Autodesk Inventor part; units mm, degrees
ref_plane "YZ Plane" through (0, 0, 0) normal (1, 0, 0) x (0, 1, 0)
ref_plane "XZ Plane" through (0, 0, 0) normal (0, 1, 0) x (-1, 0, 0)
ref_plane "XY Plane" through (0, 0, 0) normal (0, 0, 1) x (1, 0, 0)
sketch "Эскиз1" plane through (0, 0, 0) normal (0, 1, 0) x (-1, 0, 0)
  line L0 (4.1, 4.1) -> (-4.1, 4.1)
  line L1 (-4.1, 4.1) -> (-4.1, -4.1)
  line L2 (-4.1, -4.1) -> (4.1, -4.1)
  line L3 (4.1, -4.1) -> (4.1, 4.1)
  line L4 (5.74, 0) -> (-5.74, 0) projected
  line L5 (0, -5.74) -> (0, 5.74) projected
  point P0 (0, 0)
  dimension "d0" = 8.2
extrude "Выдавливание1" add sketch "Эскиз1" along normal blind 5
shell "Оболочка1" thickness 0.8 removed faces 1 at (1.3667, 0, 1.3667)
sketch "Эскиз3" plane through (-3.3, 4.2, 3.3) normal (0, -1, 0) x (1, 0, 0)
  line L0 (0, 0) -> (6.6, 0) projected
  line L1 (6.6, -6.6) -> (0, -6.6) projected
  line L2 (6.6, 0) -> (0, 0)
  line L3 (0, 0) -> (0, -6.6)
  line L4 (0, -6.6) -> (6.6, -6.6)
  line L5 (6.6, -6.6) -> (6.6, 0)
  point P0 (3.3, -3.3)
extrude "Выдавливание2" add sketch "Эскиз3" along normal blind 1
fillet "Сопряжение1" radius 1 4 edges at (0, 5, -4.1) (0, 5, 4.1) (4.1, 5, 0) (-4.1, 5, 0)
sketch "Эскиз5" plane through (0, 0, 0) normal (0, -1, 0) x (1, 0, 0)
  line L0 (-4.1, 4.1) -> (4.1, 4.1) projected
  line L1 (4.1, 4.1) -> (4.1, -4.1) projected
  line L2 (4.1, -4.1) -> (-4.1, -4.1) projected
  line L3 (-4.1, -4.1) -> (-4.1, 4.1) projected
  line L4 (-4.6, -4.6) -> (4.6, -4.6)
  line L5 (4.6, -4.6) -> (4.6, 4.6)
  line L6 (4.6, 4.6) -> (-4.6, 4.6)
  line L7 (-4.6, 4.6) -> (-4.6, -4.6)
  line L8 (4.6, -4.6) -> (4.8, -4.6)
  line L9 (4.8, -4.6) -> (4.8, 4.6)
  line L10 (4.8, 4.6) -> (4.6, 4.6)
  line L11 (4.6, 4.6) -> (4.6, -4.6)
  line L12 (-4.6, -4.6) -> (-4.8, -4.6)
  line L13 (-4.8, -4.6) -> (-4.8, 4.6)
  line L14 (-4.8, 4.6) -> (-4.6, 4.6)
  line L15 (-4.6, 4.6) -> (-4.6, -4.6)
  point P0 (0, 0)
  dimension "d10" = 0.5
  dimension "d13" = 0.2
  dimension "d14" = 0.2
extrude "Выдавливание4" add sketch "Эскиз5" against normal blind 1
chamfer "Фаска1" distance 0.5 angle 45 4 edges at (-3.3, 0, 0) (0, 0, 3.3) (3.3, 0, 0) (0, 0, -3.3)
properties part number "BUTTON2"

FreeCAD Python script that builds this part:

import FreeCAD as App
import Part
import Sketcher
from FreeCAD import Vector
Q = App.Units.Quantity


def edges_at(feature, points):
    """Names of the edges that pass closest to the given points."""
    edges = feature.Shape.Edges
    near = lambda p: min(range(len(edges)), key=lambda i: edges[i].distToShape(Part.Vertex(*p))[0])
    return sorted({f"Edge{near(p) + 1}" for p in points})


def faces_at(feature, points):
    """Names of the faces that lie closest to the given points."""
    faces = feature.Shape.Faces
    near = lambda p: min(range(len(faces)), key=lambda i: faces[i].distToShape(Part.Vertex(*p))[0])
    return sorted({f"Face{near(p) + 1}" for p in points})

doc = App.newDocument("Part")
body = doc.addObject("PartDesign::Body", "Body")

sketch1 = doc.addObject("Sketcher::SketchObject", "Sketch")
body.addObject(sketch1)
sketch1.AttachmentSupport = (doc.XZ_Plane, [""])
sketch1.MapMode = "FlatFace"
sketch1.addGeometry([
    Part.LineSegment(Vector(-4.1, 4.1, 0), Vector(4.1, 4.1, 0)),
    Part.LineSegment(Vector(4.1, 4.1, 0), Vector(4.1, -4.1, 0)),
    Part.LineSegment(Vector(4.1, -4.1, 0), Vector(-4.1, -4.1, 0)),
    Part.LineSegment(Vector(-4.1, -4.1, 0), Vector(-4.1, 4.1, 0)),
], False)
sketch1.addConstraint([
    Sketcher.Constraint("Coincident", 0, 2, 1, 1),
    Sketcher.Constraint("Coincident", 1, 2, 2, 1),
    Sketcher.Constraint("Coincident", 2, 2, 3, 1),
    Sketcher.Constraint("Coincident", 3, 2, 0, 1),
    Sketcher.Constraint("Horizontal", 0),
    Sketcher.Constraint("Vertical", 1),
    Sketcher.Constraint("Horizontal", 2),
    Sketcher.Constraint("Vertical", 3),
    Sketcher.Constraint("Symmetric", 0, 2, 2, 2, -1, 1),
    Sketcher.Constraint("Equal", 2, 1),
    Sketcher.Constraint("DistanceX", 0, 1, 0, 2, Q("8.2 mm")),
])
pad1 = doc.addObject("PartDesign::Pad", "Pad")
body.addObject(pad1)
pad1.Profile = sketch1
pad1.Length = 5
pad1.Reversed = True
doc.recompute()

thickness = doc.addObject("PartDesign::Thickness", "Thickness")
body.addObject(thickness)
thickness.Base = (pad1, faces_at(pad1, [(1.367, 0, 1.367)]))
thickness.Value = 0.8
thickness.Reversed = True
thickness.Join = "Intersection"

sketch2 = doc.addObject("Sketcher::SketchObject", "Sketch001")
body.addObject(sketch2)
sketch2.AttachmentSupport = (doc.XZ_Plane, [""])
sketch2.MapMode = "FlatFace"
sketch2.AttachmentOffset = App.Placement(Vector(0, 0, -4.2), App.Rotation())
sketch2.addGeometry([
    Part.LineSegment(Vector(3.3, 3.3, 0), Vector(-3.3, 3.3, 0)),
    Part.LineSegment(Vector(-3.3, 3.3, 0), Vector(-3.3, -3.3, 0)),
    Part.LineSegment(Vector(-3.3, -3.3, 0), Vector(3.3, -3.3, 0)),
    Part.LineSegment(Vector(3.3, -3.3, 0), Vector(3.3, 3.3, 0)),
], False)
sketch2.addConstraint([
    Sketcher.Constraint("Coincident", 0, 2, 1, 1),
    Sketcher.Constraint("Coincident", 1, 2, 2, 1),
    Sketcher.Constraint("Coincident", 2, 2, 3, 1),
    Sketcher.Constraint("Coincident", 3, 2, 0, 1),
    Sketcher.Constraint("Horizontal", 0),
    Sketcher.Constraint("Vertical", 1),
    Sketcher.Constraint("Horizontal", 2),
    Sketcher.Constraint("Vertical", 3),
    Sketcher.Constraint("Symmetric", 0, 2, 2, 2, -1, 1),
    Sketcher.Constraint("Equal", 2, 1),
    Sketcher.Constraint("DistanceX", 0, 2, 0, 1, Q("6.6 mm")),
])
pad2 = doc.addObject("PartDesign::Pad", "Pad001")
body.addObject(pad2)
pad2.Profile = sketch2
pad2.Length = 1
doc.recompute()

fillet = doc.addObject("PartDesign::Fillet", "Fillet")
body.addObject(fillet)
fillet.Base = (pad2, edges_at(pad2, [
    (0, 5, -4.1),
    (0, 5, 4.1),
    (4.1, 5, 0),
    (-4.1, 5, 0),
]))
fillet.Radius = 1

sketch3 = doc.addObject("Sketcher::SketchObject", "Sketch002")
body.addObject(sketch3)
sketch3.AttachmentSupport = (doc.XZ_Plane, [""])
sketch3.MapMode = "FlatFace"
sketch3.addGeometry([
    Part.LineSegment(Vector(-4.8, 4.6, 0), Vector(-4.8, -4.6, 0)),
    Part.LineSegment(Vector(-4.8, -4.6, 0), Vector(4.8, -4.6, 0)),
    Part.LineSegment(Vector(4.8, -4.6, 0), Vector(4.8, 4.6, 0)),
    Part.LineSegment(Vector(4.8, 4.6, 0), Vector(-4.8, 4.6, 0)),
    Part.LineSegment(Vector(-4.1, -4.1, 0), Vector(-4.1, 4.1, 0)),
    Part.LineSegment(Vector(-4.1, 4.1, 0), Vector(4.1, 4.1, 0)),
    Part.LineSegment(Vector(4.1, 4.1, 0), Vector(4.1, -4.1, 0)),
    Part.LineSegment(Vector(4.1, -4.1, 0), Vector(-4.1, -4.1, 0)),
], False)
sketch3.addConstraint([
    Sketcher.Constraint("Coincident", 0, 2, 1, 1),
    Sketcher.Constraint("Coincident", 1, 2, 2, 1),
    Sketcher.Constraint("Coincident", 2, 2, 3, 1),
    Sketcher.Constraint("Coincident", 3, 2, 0, 1),
    Sketcher.Constraint("Coincident", 4, 2, 5, 1),
    Sketcher.Constraint("Coincident", 5, 2, 6, 1),
    Sketcher.Constraint("Coincident", 6, 2, 7, 1),
    Sketcher.Constraint("Coincident", 7, 2, 4, 1),
    Sketcher.Constraint("Vertical", 0),
    Sketcher.Constraint("Horizontal", 1),
    Sketcher.Constraint("Vertical", 2),
    Sketcher.Constraint("Horizontal", 3),
    Sketcher.Constraint("Vertical", 4),
    Sketcher.Constraint("Horizontal", 5),
    Sketcher.Constraint("Vertical", 6),
    Sketcher.Constraint("Horizontal", 7),
    Sketcher.Constraint("Symmetric", 0, 2, 2, 2, -1, 1),
    Sketcher.Constraint("Symmetric", 4, 2, 6, 2, -1, 1),
    Sketcher.Constraint("Equal", 7, 4),
    Sketcher.Constraint("DistanceY", 4, 2, 3, 2, Q("0.5 mm")),
    Sketcher.Constraint("DistanceX", 1, 1, 1, 2, Q("9.6 mm")),
    Sketcher.Constraint("DistanceX", 5, 1, 5, 2, Q("8.2 mm")),
])
pad3 = doc.addObject("PartDesign::Pad", "Pad002")
body.addObject(pad3)
pad3.Profile = sketch3
pad3.Length = 1
pad3.Reversed = True
doc.recompute()

chamfer = doc.addObject("PartDesign::Chamfer", "Chamfer")
body.addObject(chamfer)
chamfer.Base = (pad3, edges_at(pad3, [
    (-3.3, 0, 0),
    (0, 0, 3.3),
    (3.3, 0, 0),
    (0, 0, -3.3),
]))
chamfer.Size = 0.5

doc.recompute()
